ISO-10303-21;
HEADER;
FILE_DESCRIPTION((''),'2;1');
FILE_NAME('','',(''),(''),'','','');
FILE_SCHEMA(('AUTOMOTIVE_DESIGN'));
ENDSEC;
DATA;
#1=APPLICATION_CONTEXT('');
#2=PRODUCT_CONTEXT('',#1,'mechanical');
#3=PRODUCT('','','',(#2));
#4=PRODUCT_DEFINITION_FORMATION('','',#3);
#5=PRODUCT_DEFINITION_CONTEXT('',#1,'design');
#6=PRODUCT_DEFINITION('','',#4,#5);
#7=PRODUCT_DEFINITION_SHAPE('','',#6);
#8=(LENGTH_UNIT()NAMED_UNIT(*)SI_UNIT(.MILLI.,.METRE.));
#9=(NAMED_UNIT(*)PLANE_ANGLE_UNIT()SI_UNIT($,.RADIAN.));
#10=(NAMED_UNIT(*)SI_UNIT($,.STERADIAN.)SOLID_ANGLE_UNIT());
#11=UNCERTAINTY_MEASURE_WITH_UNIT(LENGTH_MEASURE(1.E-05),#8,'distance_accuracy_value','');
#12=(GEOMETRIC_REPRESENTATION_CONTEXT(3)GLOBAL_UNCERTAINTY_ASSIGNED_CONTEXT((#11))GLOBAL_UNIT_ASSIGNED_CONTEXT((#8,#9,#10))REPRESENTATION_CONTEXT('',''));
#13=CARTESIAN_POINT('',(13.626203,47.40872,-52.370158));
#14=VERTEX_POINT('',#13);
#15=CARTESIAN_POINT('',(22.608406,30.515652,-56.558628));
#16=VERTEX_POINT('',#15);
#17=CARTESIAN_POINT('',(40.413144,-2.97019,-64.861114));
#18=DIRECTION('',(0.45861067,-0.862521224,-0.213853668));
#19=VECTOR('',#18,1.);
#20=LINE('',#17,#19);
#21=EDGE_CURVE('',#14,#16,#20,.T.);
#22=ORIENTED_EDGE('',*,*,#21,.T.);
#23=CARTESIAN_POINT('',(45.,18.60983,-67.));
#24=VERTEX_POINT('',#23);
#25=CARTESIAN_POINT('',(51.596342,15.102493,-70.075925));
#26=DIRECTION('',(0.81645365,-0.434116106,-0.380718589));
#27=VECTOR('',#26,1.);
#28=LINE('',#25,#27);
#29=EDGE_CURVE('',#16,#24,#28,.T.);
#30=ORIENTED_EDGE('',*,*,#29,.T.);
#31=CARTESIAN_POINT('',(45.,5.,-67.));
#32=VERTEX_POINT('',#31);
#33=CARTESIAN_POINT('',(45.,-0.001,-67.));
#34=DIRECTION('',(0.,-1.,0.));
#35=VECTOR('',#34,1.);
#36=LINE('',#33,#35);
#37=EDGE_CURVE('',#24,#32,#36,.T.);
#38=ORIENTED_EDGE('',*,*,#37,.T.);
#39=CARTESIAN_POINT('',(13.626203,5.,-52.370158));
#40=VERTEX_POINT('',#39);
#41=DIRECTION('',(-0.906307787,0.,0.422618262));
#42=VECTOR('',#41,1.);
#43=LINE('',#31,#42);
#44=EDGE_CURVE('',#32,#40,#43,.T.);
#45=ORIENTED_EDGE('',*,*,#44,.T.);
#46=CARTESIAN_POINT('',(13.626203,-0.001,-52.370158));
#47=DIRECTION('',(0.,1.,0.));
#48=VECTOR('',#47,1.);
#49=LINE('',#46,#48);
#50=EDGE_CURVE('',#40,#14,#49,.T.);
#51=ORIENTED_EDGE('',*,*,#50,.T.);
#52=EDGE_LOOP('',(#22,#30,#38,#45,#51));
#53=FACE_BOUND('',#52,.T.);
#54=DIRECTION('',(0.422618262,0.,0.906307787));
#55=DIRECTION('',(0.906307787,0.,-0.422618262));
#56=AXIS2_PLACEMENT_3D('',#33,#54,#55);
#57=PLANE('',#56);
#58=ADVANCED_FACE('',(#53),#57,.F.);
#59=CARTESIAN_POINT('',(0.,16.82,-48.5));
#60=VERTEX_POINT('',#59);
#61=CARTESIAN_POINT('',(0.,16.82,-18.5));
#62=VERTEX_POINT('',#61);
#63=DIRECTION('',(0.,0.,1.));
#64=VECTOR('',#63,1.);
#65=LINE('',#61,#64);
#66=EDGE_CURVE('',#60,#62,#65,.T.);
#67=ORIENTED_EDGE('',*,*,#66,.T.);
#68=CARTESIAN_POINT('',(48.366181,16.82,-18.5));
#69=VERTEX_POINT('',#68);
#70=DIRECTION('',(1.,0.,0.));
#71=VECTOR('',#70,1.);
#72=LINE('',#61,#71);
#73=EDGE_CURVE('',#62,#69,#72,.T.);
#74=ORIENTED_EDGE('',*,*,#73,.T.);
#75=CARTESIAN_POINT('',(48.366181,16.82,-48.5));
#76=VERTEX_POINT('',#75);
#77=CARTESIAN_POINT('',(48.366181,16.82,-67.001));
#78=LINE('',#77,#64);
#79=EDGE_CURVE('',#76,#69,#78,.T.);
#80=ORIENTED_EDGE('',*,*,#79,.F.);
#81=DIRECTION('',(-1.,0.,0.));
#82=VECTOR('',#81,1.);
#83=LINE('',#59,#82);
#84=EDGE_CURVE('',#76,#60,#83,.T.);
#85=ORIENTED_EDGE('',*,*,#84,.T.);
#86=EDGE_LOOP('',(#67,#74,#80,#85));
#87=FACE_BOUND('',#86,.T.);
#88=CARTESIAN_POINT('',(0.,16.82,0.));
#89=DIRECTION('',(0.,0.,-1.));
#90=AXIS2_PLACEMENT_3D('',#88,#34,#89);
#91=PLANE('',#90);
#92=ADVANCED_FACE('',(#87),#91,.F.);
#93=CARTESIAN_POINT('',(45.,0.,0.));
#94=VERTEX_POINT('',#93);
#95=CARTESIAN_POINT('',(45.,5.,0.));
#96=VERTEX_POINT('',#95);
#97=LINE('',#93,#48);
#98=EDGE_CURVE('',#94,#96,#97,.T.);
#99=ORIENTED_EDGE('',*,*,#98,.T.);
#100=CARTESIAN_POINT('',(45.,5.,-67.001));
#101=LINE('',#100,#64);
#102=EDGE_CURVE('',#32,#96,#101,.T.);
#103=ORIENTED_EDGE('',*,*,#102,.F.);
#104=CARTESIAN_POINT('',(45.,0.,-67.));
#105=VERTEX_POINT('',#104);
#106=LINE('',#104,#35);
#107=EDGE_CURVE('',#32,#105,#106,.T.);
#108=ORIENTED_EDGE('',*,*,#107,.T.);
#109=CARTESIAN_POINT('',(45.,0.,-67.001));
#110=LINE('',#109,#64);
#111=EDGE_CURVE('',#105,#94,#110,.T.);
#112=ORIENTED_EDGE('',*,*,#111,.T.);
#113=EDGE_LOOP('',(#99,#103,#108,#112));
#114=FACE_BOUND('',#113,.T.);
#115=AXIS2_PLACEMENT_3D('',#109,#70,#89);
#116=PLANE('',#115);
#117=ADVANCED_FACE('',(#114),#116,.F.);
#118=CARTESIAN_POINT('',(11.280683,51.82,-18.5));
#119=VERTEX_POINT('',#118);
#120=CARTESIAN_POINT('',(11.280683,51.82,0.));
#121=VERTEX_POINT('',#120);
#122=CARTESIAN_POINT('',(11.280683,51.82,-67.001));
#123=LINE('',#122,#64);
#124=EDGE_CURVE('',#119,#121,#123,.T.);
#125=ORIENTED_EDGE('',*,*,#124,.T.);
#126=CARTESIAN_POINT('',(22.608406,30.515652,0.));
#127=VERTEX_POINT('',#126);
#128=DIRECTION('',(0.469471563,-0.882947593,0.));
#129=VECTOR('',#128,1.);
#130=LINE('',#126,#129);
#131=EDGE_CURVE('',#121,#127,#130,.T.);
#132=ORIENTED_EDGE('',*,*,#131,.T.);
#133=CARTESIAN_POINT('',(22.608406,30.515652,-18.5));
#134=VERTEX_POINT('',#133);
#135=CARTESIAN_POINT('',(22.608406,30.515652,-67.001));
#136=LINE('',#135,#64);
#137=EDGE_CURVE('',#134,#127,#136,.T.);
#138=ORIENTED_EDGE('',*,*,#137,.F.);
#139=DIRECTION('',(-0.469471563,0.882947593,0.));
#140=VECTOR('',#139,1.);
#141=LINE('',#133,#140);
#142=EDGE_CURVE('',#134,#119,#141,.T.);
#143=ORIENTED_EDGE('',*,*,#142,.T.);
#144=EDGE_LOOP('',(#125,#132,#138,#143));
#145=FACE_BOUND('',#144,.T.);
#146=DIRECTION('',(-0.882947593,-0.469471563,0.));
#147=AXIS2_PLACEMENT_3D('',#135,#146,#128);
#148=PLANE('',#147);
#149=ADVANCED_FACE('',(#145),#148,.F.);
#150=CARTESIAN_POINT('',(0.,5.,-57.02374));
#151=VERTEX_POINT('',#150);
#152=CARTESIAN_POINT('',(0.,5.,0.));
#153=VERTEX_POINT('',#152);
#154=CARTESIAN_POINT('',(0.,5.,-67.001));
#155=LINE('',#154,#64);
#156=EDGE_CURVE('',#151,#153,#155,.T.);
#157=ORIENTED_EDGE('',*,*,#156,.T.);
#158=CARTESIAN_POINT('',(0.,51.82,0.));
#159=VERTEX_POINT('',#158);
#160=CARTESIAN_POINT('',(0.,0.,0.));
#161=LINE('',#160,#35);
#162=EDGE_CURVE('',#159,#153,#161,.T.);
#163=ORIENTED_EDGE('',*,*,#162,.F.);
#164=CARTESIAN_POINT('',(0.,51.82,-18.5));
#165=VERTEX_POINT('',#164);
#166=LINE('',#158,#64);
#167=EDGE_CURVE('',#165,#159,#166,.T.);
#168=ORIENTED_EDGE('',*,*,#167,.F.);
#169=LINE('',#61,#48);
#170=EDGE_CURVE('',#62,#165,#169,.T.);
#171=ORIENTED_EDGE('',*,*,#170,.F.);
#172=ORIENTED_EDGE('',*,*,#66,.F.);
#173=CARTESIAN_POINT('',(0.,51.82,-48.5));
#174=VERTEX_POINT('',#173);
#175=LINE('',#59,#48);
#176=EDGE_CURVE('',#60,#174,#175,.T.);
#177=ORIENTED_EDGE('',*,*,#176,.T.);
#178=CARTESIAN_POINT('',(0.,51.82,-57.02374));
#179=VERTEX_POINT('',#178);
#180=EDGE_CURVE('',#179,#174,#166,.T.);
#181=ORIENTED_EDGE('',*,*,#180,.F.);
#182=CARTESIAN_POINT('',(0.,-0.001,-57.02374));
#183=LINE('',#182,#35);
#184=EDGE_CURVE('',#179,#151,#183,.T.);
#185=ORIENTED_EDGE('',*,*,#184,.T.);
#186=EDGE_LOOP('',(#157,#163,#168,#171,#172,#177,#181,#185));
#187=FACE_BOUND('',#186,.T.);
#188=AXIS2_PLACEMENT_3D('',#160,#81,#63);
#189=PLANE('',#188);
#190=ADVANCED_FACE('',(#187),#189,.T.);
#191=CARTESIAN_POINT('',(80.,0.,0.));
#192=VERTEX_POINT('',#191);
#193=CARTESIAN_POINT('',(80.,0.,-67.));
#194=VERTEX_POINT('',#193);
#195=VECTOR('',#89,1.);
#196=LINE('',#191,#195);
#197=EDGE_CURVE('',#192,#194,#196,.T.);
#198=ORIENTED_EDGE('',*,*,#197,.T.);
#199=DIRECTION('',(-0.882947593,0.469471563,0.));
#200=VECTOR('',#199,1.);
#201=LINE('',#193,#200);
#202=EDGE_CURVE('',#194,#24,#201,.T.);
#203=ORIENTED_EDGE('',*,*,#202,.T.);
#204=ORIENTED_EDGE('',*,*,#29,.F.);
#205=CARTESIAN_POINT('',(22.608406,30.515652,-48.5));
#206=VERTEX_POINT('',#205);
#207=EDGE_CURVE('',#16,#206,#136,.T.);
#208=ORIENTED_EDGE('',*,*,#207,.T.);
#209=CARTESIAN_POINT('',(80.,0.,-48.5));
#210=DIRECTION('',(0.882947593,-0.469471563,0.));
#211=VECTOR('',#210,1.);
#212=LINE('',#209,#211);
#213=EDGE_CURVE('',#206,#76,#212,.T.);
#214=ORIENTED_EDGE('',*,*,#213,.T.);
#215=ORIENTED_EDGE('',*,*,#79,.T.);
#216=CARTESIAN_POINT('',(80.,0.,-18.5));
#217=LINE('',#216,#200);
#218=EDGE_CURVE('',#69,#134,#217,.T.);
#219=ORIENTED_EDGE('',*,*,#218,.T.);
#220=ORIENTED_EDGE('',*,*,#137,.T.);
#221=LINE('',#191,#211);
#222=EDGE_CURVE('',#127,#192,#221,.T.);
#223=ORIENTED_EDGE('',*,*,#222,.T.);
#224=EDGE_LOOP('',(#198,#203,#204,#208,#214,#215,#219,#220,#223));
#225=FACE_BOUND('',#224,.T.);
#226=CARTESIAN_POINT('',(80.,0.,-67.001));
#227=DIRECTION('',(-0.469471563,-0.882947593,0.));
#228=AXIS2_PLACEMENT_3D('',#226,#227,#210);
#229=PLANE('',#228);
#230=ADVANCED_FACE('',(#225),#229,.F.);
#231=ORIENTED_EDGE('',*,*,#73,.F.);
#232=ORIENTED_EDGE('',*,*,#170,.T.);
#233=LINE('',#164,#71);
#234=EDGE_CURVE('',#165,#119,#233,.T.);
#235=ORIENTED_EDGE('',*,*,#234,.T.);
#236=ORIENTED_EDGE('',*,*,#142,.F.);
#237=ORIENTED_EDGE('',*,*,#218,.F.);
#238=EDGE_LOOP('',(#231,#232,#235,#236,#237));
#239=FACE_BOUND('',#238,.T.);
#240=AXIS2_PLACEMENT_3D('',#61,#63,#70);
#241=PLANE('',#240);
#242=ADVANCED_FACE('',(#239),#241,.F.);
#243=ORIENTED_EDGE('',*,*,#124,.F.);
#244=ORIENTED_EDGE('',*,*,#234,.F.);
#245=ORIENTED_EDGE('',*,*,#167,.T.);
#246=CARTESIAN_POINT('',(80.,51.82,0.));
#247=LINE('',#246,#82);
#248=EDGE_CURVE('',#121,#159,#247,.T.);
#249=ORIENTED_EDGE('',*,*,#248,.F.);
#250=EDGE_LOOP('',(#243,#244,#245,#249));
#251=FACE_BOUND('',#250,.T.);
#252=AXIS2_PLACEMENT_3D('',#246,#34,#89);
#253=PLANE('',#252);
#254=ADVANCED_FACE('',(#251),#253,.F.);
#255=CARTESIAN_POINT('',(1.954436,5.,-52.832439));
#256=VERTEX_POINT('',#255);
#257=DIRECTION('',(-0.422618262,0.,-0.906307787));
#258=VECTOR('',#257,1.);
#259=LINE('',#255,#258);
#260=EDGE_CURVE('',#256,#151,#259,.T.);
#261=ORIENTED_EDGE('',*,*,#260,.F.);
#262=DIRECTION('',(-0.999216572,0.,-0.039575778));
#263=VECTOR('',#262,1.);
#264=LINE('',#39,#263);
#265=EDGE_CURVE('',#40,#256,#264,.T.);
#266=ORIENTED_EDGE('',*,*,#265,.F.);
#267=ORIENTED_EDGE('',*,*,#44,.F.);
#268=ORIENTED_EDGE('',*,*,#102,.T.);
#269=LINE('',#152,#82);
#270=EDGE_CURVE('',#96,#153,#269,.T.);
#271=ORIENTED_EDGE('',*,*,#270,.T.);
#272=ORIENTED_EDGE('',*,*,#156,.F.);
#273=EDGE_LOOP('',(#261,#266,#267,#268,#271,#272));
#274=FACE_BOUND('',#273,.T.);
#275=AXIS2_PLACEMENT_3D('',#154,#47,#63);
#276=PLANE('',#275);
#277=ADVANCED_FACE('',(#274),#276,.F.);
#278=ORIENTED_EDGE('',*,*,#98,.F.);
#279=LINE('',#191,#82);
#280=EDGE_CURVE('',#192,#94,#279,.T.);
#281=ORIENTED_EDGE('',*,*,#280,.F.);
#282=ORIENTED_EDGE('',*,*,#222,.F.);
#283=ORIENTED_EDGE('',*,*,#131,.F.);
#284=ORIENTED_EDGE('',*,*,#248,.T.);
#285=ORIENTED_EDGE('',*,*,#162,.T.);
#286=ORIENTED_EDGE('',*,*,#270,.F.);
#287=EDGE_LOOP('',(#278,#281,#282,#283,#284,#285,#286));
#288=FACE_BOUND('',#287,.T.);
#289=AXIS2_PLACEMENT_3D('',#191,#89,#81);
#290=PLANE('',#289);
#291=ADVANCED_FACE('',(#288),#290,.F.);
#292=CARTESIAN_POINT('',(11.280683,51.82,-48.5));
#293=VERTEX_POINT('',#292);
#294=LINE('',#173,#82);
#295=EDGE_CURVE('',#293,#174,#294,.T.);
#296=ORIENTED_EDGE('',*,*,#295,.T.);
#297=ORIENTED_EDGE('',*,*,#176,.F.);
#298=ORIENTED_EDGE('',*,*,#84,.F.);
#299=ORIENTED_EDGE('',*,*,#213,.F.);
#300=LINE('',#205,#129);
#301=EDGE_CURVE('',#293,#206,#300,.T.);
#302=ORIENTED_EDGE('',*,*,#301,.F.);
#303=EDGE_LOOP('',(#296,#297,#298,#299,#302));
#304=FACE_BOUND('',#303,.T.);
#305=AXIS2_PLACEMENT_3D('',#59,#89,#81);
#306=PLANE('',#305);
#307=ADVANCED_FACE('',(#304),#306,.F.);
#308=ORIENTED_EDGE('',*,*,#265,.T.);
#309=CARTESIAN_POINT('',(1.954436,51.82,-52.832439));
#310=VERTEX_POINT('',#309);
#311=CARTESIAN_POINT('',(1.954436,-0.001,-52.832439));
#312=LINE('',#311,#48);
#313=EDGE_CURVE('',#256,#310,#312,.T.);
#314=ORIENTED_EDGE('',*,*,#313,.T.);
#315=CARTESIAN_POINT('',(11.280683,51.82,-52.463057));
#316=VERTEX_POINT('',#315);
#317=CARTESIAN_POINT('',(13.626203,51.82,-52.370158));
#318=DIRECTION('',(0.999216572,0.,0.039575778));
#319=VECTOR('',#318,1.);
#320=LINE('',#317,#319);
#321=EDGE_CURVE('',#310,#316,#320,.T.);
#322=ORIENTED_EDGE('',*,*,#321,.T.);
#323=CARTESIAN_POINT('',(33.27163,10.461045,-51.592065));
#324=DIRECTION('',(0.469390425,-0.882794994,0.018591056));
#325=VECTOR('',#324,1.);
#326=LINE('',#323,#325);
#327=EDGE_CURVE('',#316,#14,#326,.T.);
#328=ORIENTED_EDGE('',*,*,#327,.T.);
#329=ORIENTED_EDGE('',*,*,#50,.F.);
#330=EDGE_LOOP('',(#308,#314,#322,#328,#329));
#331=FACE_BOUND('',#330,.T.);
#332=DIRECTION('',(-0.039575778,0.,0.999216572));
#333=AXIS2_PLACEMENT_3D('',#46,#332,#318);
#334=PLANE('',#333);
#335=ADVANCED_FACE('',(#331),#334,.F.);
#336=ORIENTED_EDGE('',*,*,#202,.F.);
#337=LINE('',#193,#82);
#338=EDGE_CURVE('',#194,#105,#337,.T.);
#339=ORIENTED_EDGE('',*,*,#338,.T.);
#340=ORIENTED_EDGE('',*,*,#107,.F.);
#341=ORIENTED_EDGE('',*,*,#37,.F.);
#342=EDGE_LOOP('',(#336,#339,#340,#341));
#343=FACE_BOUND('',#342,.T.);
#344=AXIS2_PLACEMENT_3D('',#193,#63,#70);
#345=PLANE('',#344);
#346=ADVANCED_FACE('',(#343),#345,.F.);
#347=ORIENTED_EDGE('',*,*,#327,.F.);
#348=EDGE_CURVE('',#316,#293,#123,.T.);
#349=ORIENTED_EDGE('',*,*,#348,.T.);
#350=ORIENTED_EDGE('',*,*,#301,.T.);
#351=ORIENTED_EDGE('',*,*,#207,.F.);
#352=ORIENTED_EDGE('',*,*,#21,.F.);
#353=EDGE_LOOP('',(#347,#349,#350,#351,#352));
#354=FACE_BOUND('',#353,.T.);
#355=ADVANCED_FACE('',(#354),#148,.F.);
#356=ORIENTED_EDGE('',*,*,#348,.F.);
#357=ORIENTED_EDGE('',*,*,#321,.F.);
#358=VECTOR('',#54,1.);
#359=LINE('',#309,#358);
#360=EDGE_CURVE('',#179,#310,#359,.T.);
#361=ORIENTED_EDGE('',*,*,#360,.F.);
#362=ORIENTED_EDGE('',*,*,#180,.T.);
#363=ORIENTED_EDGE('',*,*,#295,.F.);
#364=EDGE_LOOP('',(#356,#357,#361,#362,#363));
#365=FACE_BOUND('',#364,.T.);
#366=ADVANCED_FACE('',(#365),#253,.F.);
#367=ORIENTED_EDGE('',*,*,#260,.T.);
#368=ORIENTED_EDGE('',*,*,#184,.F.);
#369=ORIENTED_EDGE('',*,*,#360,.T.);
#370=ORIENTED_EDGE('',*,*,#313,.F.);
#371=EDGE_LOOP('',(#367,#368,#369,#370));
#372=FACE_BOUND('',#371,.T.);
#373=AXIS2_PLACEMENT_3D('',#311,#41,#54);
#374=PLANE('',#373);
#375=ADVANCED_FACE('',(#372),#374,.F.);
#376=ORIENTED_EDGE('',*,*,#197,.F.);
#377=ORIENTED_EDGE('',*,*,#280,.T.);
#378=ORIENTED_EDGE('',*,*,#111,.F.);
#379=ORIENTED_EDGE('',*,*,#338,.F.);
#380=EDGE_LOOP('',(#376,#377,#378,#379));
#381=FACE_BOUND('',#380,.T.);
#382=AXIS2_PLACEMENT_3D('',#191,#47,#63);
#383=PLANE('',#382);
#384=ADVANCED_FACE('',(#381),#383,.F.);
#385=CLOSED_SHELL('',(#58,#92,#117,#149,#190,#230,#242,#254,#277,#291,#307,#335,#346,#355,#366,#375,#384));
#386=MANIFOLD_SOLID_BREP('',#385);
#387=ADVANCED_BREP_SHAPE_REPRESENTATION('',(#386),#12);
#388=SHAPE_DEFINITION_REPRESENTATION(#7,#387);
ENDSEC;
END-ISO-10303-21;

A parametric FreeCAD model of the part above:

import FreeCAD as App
import Part
import Sketcher
from FreeCAD import Vector
Q = App.Units.Quantity


def add_polygon(sketch, points):
    """Adds a closed chain of lines whose ends are joined by coincident constraints."""
    first, n = sketch.GeometryCount, len(points)
    for a, b in zip(points, points[1:] + points[:1]):
        sketch.addGeometry(Part.LineSegment(App.Vector(*a, 0), App.Vector(*b, 0)), False)
    for i in range(n):
        sketch.addConstraint(Sketcher.Constraint("Coincident", first + i, 2, first + (i + 1) % n, 1))

doc = App.newDocument("Part")
body = doc.addObject("PartDesign::Body", "Body")

# Sketch on YZ plane
sketch1 = body.newObject("Sketcher::SketchObject", "Sketch")
sketch1.AttachmentSupport = (doc.getObject("YZ_Plane"), [""])
sketch1.MapMode = "FlatFace"
add_polygon(sketch1, [(52, 0), (0, 0), (0, -67), (52, -67)])  # lines 0-3
sketch1.addConstraint(Sketcher.Constraint("Horizontal", 0))
sketch1.addConstraint(Sketcher.Constraint("Vertical", 1))
sketch1.addConstraint(Sketcher.Constraint("Horizontal", 2))
sketch1.addConstraint(Sketcher.Constraint("Vertical", 3))
sketch1.addConstraint(Sketcher.Constraint("Coincident", 0, 2, -1, 1))
sketch1.addConstraint(Sketcher.Constraint("DistanceY", 1, 2, 1, 1, Q("67 mm")))
sketch1.addConstraint(Sketcher.Constraint("DistanceX", 0, 2, 0, 1, Q("51.82 mm")))
pad1 = body.newObject("PartDesign::Pad", "Pad")
pad1.Profile = sketch1
pad1.Length = 80

# Sketch on XY plane
sketch2 = body.newObject("Sketcher::SketchObject", "Sketch001")
sketch2.AttachmentSupport = (doc.getObject("XY_Plane"), [""])
sketch2.MapMode = "FlatFace"
add_polygon(sketch2, [(23, 31), (80, 0), (80, 52), (11, 52)])  # lines 0-3
sketch2.addConstraint(Sketcher.Constraint("Vertical", 1))
sketch2.addConstraint(Sketcher.Constraint("Horizontal", 2))
sketch2.addConstraint(Sketcher.Constraint("PointOnObject", 0, 2, -1))
sketch2.addConstraint(Sketcher.Constraint("Angle", 0, Q("-28 deg")))
sketch2.addConstraint(Sketcher.Constraint("Angle", 3, Q("-62 deg")))
sketch2.addConstraint(Sketcher.Constraint("Distance", 0, Q("65 mm")))
sketch2.addConstraint(Sketcher.Constraint("DistanceX", -1, 1, 0, 2, Q("80 mm")))
sketch2.addConstraint(Sketcher.Constraint("DistanceY", 1, 1, 1, 2, Q("51.82 mm")))
pocket1 = body.newObject("PartDesign::Pocket", "Pocket")
pocket1.Profile = sketch2
pocket1.Type = "UpToFirst"

# Sketch on XZ plane
sketch3 = body.newObject("Sketcher::SketchObject", "Sketch002")
sketch3.AttachmentSupport = (doc.getObject("XZ_Plane"), [""])
sketch3.MapMode = "FlatFace"
sketch3.AttachmentOffset = App.Placement(Vector(0, 0, -51.82), App.Rotation())
add_polygon(sketch3, [(0, -48), (0, -18), (60, -18), (60, -48)])  # lines 0-3
sketch3.addConstraint(Sketcher.Constraint("Vertical", 0))
sketch3.addConstraint(Sketcher.Constraint("Horizontal", 1))
sketch3.addConstraint(Sketcher.Constraint("Vertical", 2))
sketch3.addConstraint(Sketcher.Constraint("Horizontal", 3))
sketch3.addConstraint(Sketcher.Constraint("PointOnObject", 0, 2, -2))
sketch3.addConstraint(Sketcher.Constraint("DistanceX", 1, 1, 1, 2, Q("60 mm")))
sketch3.addConstraint(Sketcher.Constraint("DistanceY", 0, 1, 0, 2, Q("30 mm")))
sketch3.addConstraint(Sketcher.Constraint("DistanceY", 0, 2, -1, 1, Q("18.5 mm")))
pocket2 = body.newObject("PartDesign::Pocket", "Pocket001")
pocket2.Profile = sketch3
pocket2.Length = 35
pocket2.Reversed = True

# Sketch on XY plane
sketch4 = body.newObject("Sketcher::SketchObject", "Sketch003")
sketch4.AttachmentSupport = (doc.getObject("XY_Plane"), [""])
sketch4.MapMode = "FlatFace"
add_polygon(sketch4, [(0, 5), (0, 0), (45, 0), (45, 5)])  # lines 0-3
sketch4.addConstraint(Sketcher.Constraint("Vertical", 0))
sketch4.addConstraint(Sketcher.Constraint("Horizontal", 1))
sketch4.addConstraint(Sketcher.Constraint("Vertical", 2))
sketch4.addConstraint(Sketcher.Constraint("Horizontal", 3))
sketch4.addConstraint(Sketcher.Constraint("Coincident", 0, 2, -1, 1))
sketch4.addConstraint(Sketcher.Constraint("DistanceX", 1, 1, 1, 2, Q("45 mm")))
sketch4.addConstraint(Sketcher.Constraint("DistanceY", 0, 2, 0, 1, Q("5 mm")))
pocket3 = body.newObject("PartDesign::Pocket", "Pocket002")
pocket3.Profile = sketch4
pocket3.Type = "UpToFirst"

# Sketch on XZ plane
sketch5 = body.newObject("Sketcher::SketchObject", "Sketch004")
sketch5.AttachmentSupport = (doc.getObject("XZ_Plane"), [""])
sketch5.MapMode = "FlatFace"
sketch5.AttachmentOffset = App.Placement(Vector(0, 0, -51.82), App.Rotation())
add_polygon(sketch5, [(0, -64.3), (4.9, -67), (0, -67)])  # lines 0-2
sketch5.addConstraint(Sketcher.Constraint("Horizontal", 1))
sketch5.addConstraint(Sketcher.Constraint("Vertical", 2))
sketch5.addConstraint(Sketcher.Constraint("PointOnObject", 1, 2, -2))
sketch5.addConstraint(Sketcher.Constraint("DistanceY", 0, 2, -1, 1, Q("67 mm")))
sketch5.addConstraint(Sketcher.Constraint("DistanceX", 1, 2, 1, 1, Q("4.922856 mm")))
sketch5.addConstraint(Sketcher.Constraint("DistanceY", 2, 1, 2, 2, Q("2.665345 mm")))
pocket4 = body.newObject("PartDesign::Pocket", "Pocket003")
pocket4.Profile = sketch5
pocket4.Type = "UpToFirst"
pocket4.Reversed = True

# Sketch on XZ plane
sketch6 = body.newObject("Sketcher::SketchObject", "Sketch005")
sketch6.AttachmentSupport = (doc.getObject("XZ_Plane"), [""])
sketch6.MapMode = "FlatFace"
sketch6.AttachmentOffset = App.Placement(Vector(0, 0, -51.82), App.Rotation())
add_polygon(sketch6, [(14, -52), (45, -67), (-5, -67), (2, -53)])  # lines 0-3
sketch6.addConstraint(Sketcher.Constraint("Perpendicular", 0, 2))
sketch6.addConstraint(Sketcher.Constraint("Angle", 0, Q("-25 deg")))
sketch6.addConstraint(Sketcher.Constraint("DistanceX", -1, 1, 0, 2, Q("45 mm")))
sketch6.addConstraint(Sketcher.Constraint("DistanceY", 0, 2, -1, 1, Q("67 mm")))
sketch6.addConstraint(Sketcher.Constraint("Distance", 2, Q("15.648329 mm")))
sketch6.addConstraint(Sketcher.Constraint("Distance", 3, Q("11.680918 mm")))
sketch6.addConstraint(Sketcher.Constraint("DistanceY", 1, 2, -1, 1, Q("67.014642 mm")))
sketch6.addConstraint(Sketcher.Constraint("DistanceY", 3, 2, -1, 1, Q("52.370158 mm")))
pocket5 = body.newObject("PartDesign::Pocket", "Pocket004")
pocket5.Profile = sketch6
pocket5.Length = 46.82
pocket5.Reversed = True

doc.recompute()
